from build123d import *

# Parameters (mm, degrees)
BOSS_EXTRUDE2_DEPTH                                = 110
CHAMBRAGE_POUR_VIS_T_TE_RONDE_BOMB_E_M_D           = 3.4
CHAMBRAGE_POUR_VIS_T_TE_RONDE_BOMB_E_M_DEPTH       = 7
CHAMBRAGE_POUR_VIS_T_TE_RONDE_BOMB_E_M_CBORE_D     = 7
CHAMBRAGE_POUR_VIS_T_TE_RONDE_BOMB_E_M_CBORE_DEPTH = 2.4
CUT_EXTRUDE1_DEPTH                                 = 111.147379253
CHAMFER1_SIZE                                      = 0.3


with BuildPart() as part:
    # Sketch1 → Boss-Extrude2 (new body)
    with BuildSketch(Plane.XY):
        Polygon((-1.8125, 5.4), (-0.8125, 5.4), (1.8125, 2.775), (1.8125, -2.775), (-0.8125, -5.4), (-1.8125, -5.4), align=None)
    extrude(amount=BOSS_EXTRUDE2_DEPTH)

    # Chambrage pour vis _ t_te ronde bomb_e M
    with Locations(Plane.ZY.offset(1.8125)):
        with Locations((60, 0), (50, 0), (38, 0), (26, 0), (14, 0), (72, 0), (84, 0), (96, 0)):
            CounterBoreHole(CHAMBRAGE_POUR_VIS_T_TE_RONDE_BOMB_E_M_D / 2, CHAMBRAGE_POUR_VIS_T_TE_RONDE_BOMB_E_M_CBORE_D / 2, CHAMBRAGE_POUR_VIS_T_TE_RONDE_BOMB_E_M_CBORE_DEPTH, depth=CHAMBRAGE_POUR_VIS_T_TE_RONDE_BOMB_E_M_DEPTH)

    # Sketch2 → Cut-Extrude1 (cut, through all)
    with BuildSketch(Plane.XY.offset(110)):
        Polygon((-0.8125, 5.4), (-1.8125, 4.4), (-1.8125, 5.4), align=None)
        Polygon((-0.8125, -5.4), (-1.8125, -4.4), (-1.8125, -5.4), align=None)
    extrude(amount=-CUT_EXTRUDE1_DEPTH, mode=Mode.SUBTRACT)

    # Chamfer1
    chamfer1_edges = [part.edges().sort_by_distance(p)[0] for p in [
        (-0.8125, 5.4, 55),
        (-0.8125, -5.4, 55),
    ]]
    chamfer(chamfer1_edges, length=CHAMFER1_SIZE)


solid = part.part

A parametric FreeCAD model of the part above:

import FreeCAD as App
import Part
import Sketcher

V = App.Vector


def edges_at(feature, points):
    """Names of the edges that pass closest to the given points."""
    edges = feature.Shape.Edges
    near = lambda p: min(range(len(edges)), key=lambda i: edges[i].distToShape(Part.Vertex(*p))[0])
    return sorted({f"Edge{near(p) + 1}" for p in points})

doc = App.newDocument("Part")
body = doc.addObject("PartDesign::Body", "Body")

# Sketch on XY plane
sketch1 = body.newObject("Sketcher::SketchObject", "Sketch")
sketch1.AttachmentSupport = (doc.getObject("XY_Plane"), [""])
sketch1.MapMode = "FlatFace"
sketch1.addGeometry(Part.LineSegment(V(-0.8, 5.4, 0), V(-1.8, 5.4, 0)), False)
sketch1.addGeometry(Part.LineSegment(V(-1.8, 5.4, 0), V(-1.8, -5.4, 0)), False)
sketch1.addGeometry(Part.LineSegment(V(-1.8, -5.4, 0), V(-0.8, -5.4, 0)), False)
sketch1.addGeometry(Part.LineSegment(V(-0.8, -5.4, 0), V(1.8, -2.8, 0)), False)
sketch1.addGeometry(Part.LineSegment(V(1.8, -2.8, 0), V(1.8, 2.8, 0)), False)
sketch1.addGeometry(Part.LineSegment(V(1.8, 2.8, 0), V(-0.8, 5.4, 0)), False)
sketch1.addConstraint(Sketcher.Constraint("Coincident", 0, 2, 1, 1))
sketch1.addConstraint(Sketcher.Constraint("Coincident", 1, 2, 2, 1))
sketch1.addConstraint(Sketcher.Constraint("Coincident", 2, 2, 3, 1))
sketch1.addConstraint(Sketcher.Constraint("Coincident", 3, 2, 4, 1))
sketch1.addConstraint(Sketcher.Constraint("Coincident", 4, 2, 5, 1))
sketch1.addConstraint(Sketcher.Constraint("Coincident", 5, 2, 0, 1))
sketch1.addConstraint(Sketcher.Constraint("Horizontal", 0))
sketch1.addConstraint(Sketcher.Constraint("Vertical", 1))
sketch1.addConstraint(Sketcher.Constraint("Horizontal", 2))
sketch1.addConstraint(Sketcher.Constraint("Vertical", 4))
sketch1.addConstraint(Sketcher.Constraint("Symmetric", 2, 2, 5, 2, -1))
sketch1.addConstraint(Sketcher.Constraint("Perpendicular", 3, 5))
sketch1.addConstraint(Sketcher.Constraint("Equal", 3, 5))
sketch1.addConstraint(Sketcher.Constraint("DistanceX", 0, 2, 0, 1, 1.0))
sketch1.addConstraint(Sketcher.Constraint("DistanceY", 1, 2, 1, 1, 10.8))
sketch1.addConstraint(Sketcher.Constraint("DistanceY", 4, 1, 4, 2, 5.55))
sketch1.addConstraint(Sketcher.Constraint("DistanceX", 0, 2, -1, 1, 1.8125))
pad1 = body.newObject("PartDesign::Pad", "Pad")
pad1.Profile = sketch1
pad1.Length = 110

# Sketch on YZ plane
sketch2 = body.newObject("Sketcher::SketchObject", "Sketch001")
sketch2.AttachmentSupport = (doc.getObject("YZ_Plane"), [""])
sketch2.MapMode = "FlatFace"
sketch2.AttachmentOffset = App.Placement(V(0, 0, -1.8125), App.Rotation())
sketch2.addGeometry(Part.Circle(V(0, 60, 0), V(0, 0, 1), 1.7), False)
sketch2.addGeometry(Part.Circle(V(0, 50, 0), V(0, 0, 1), 1.7), False)
sketch2.addGeometry(Part.Circle(V(0, 38, 0), V(0, 0, 1), 1.7), False)
sketch2.addGeometry(Part.Circle(V(0, 26, 0), V(0, 0, 1), 1.7), False)
sketch2.addGeometry(Part.Circle(V(0, 14, 0), V(0, 0, 1), 1.7), False)
sketch2.addGeometry(Part.Circle(V(0, 72, 0), V(0, 0, 1), 1.7), False)
sketch2.addGeometry(Part.Circle(V(0, 84, 0), V(0, 0, 1), 1.7), False)
sketch2.addGeometry(Part.Circle(V(0, 96, 0), V(0, 0, 1), 1.7), False)
sketch2.addConstraint(Sketcher.Constraint("Equal", 0, 1))
sketch2.addConstraint(Sketcher.Constraint("Equal", 1, 2))
sketch2.addConstraint(Sketcher.Constraint("Equal", 2, 3))
sketch2.addConstraint(Sketcher.Constraint("Equal", 3, 4))
sketch2.addConstraint(Sketcher.Constraint("Equal", 4, 5))
sketch2.addConstraint(Sketcher.Constraint("Equal", 5, 6))
sketch2.addConstraint(Sketcher.Constraint("Equal", 6, 7))
sketch2.addConstraint(Sketcher.Constraint("PointOnObject", 0, 3, -2))
sketch2.addConstraint(Sketcher.Constraint("PointOnObject", 1, 3, -2))
sketch2.addConstraint(Sketcher.Constraint("PointOnObject", 2, 3, -2))
sketch2.addConstraint(Sketcher.Constraint("PointOnObject", 3, 3, -2))
sketch2.addConstraint(Sketcher.Constraint("PointOnObject", 4, 3, -2))
sketch2.addConstraint(Sketcher.Constraint("PointOnObject", 5, 3, -2))
sketch2.addConstraint(Sketcher.Constraint("PointOnObject", 6, 3, -2))
sketch2.addConstraint(Sketcher.Constraint("PointOnObject", 7, 3, -2))
sketch2.addConstraint(Sketcher.Constraint("Diameter", 0, 3.4))
sketch2.addConstraint(Sketcher.Constraint("DistanceY", -1, 1, 0, 3, 60.0))
sketch2.addConstraint(Sketcher.Constraint("DistanceY", -1, 1, 1, 3, 50.0))
sketch2.addConstraint(Sketcher.Constraint("DistanceY", -1, 1, 2, 3, 38.0))
sketch2.addConstraint(Sketcher.Constraint("DistanceY", -1, 1, 3, 3, 26.0))
sketch2.addConstraint(Sketcher.Constraint("DistanceY", -1, 1, 4, 3, 14.0))
sketch2.addConstraint(Sketcher.Constraint("DistanceY", -1, 1, 5, 3, 72.0))
sketch2.addConstraint(Sketcher.Constraint("DistanceY", -1, 1, 6, 3, 84.0))
sketch2.addConstraint(Sketcher.Constraint("DistanceY", -1, 1, 7, 3, 96.0))
doc.recompute()
hole = body.newObject("PartDesign::Hole", "Hole")
hole.Profile = sketch2
hole.ThreadType = "None"
hole.Diameter = 3.4
hole.DepthType = "Dimension"
hole.Depth = 7
hole.DrillPoint = "Flat"
hole.HoleCutType = "Counterbore"
hole.HoleCutDiameter = 7
hole.HoleCutDepth = 2.4
hole.Reversed = True

# Sketch on XY plane
sketch3 = body.newObject("Sketcher::SketchObject", "Sketch002")
sketch3.AttachmentSupport = (doc.getObject("XY_Plane"), [""])
sketch3.MapMode = "FlatFace"
sketch3.AttachmentOffset = App.Placement(V(0, 0, 110), App.Rotation())
sketch3.addGeometry(Part.LineSegment(V(-1.8, 4.4, 0), V(-0.8, 5.4, 0)), False)
sketch3.addGeometry(Part.LineSegment(V(-0.8, 5.4, 0), V(-1.8, 5.4, 0)), False)
sketch3.addGeometry(Part.LineSegment(V(-1.8, 5.4, 0), V(-1.8, 4.4, 0)), False)
sketch3.addGeometry(Part.LineSegment(V(-0.8, -5.4, 0), V(-1.8, -4.4, 0)), False)
sketch3.addGeometry(Part.LineSegment(V(-1.8, -4.4, 0), V(-1.8, -5.4, 0)), False)
sketch3.addGeometry(Part.LineSegment(V(-1.8, -5.4, 0), V(-0.8, -5.4, 0)), False)
sketch3.addConstraint(Sketcher.Constraint("Coincident", 0, 2, 1, 1))
sketch3.addConstraint(Sketcher.Constraint("Coincident", 1, 2, 2, 1))
sketch3.addConstraint(Sketcher.Constraint("Coincident", 2, 2, 0, 1))
sketch3.addConstraint(Sketcher.Constraint("Coincident", 3, 2, 4, 1))
sketch3.addConstraint(Sketcher.Constraint("Coincident", 4, 2, 5, 1))
sketch3.addConstraint(Sketcher.Constraint("Coincident", 5, 2, 3, 1))
sketch3.addConstraint(Sketcher.Constraint("Horizontal", 1))
sketch3.addConstraint(Sketcher.Constraint("Vertical", 2))
sketch3.addConstraint(Sketcher.Constraint("Vertical", 4))
sketch3.addConstraint(Sketcher.Constraint("Horizontal", 5))
sketch3.addConstraint(Sketcher.Constraint("Symmetric", 2, 2, 3, 2, -1))
sketch3.addConstraint(Sketcher.Constraint("Symmetric", 0, 2, 5, 2, -1))
sketch3.addConstraint(Sketcher.Constraint("Perpendicular", 0, 3))
sketch3.addConstraint(Sketcher.Constraint("DistanceX", 1, 2, 1, 1, 1.0))
sketch3.addConstraint(Sketcher.Constraint("DistanceY", -1, 1, 0, 2, 5.4))
sketch3.addConstraint(Sketcher.Constraint("DistanceX", 0, 2, -1, 1, 0.8125))
pocket1 = body.newObject("PartDesign::Pocket", "Pocket")
pocket1.Profile = sketch3
pocket1.Type = "ThroughAll"
doc.recompute()

chamfer = body.newObject("PartDesign::Chamfer", "Chamfer")
chamfer.Base = (pocket1, edges_at(pocket1, [(-0.812, 5.4, 55), (-0.812, -5.4, 55)]))
chamfer.Size = 0.3

doc.recompute()
